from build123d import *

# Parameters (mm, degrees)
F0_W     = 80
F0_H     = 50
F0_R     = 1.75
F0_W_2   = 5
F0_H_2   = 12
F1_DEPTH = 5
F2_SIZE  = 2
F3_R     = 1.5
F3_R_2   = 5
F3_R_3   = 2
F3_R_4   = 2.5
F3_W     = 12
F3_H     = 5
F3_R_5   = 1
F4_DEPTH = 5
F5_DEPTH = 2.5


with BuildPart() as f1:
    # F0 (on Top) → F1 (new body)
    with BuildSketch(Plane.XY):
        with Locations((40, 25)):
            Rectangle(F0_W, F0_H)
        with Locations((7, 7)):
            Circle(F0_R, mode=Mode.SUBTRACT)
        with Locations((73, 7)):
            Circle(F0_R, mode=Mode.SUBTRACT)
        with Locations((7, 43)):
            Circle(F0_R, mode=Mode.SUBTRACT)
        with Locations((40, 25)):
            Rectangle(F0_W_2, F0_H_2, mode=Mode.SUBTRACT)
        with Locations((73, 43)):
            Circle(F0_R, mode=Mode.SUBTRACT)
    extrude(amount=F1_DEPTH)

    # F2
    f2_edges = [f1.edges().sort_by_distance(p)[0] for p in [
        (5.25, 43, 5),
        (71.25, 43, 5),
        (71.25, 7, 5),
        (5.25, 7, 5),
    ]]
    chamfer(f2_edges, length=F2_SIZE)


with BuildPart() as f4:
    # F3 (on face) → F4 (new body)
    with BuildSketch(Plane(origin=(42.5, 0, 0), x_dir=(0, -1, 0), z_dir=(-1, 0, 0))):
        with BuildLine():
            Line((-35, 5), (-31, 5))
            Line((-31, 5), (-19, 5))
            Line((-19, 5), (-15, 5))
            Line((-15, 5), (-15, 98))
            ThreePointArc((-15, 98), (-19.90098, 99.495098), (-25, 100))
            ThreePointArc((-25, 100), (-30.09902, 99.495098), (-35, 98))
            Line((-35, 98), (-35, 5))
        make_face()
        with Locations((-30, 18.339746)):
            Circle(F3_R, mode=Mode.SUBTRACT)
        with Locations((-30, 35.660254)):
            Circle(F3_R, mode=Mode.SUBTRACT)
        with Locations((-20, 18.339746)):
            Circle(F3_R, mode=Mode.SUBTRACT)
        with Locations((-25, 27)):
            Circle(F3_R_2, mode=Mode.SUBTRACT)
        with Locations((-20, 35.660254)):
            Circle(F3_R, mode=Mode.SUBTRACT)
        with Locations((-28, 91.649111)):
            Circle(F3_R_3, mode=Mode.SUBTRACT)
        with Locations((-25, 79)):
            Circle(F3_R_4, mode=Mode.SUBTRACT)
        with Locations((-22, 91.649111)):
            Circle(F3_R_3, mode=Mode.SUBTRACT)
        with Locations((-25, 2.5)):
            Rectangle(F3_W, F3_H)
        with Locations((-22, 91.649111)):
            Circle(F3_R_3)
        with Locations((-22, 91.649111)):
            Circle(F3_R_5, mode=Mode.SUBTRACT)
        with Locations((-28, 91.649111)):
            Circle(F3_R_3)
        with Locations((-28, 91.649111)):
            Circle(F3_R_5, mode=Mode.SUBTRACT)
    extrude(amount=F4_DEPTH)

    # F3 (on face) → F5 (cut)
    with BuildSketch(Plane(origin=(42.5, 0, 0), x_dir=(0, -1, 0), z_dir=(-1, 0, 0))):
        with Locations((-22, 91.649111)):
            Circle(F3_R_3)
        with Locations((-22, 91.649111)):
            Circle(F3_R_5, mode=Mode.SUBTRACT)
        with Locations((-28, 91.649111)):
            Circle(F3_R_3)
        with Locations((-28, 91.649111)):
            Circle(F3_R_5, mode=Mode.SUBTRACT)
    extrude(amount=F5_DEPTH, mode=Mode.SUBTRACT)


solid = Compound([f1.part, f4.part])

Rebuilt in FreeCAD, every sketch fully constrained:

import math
import FreeCAD as App
import Part
import Sketcher

V = App.Vector
Q = App.Units.Quantity


def edges_at(feature, points):
    """Names of the edges that pass closest to the given points."""
    edges = feature.Shape.Edges
    near = lambda p: min(range(len(edges)), key=lambda i: edges[i].distToShape(Part.Vertex(*p))[0])
    return sorted({f"Edge{near(p) + 1}" for p in points})

doc = App.newDocument("Part")
body = doc.addObject("PartDesign::Body", "Body")

# Sketch on XY plane
sketch1 = body.newObject("Sketcher::SketchObject", "Sketch")
sketch1.AttachmentSupport = (doc.getObject("XY_Plane"), [""])
sketch1.MapMode = "FlatFace"
sketch1.addGeometry(Part.LineSegment(V(0, 50, 0), V(0, 0, 0)), False)
sketch1.addGeometry(Part.LineSegment(V(0, 0, 0), V(80, 0, 0)), False)
sketch1.addGeometry(Part.LineSegment(V(80, 0, 0), V(80, 50, 0)), False)
sketch1.addGeometry(Part.LineSegment(V(80, 50, 0), V(0, 50, 0)), False)
sketch1.addGeometry(Part.Circle(V(7, 7, 0), V(0, 0, 1), 1.8), False)
sketch1.addGeometry(Part.Circle(V(73, 7, 0), V(0, 0, 1), 1.8), False)
sketch1.addGeometry(Part.Circle(V(7, 43, 0), V(0, 0, 1), 1.8), False)
sketch1.addGeometry(Part.LineSegment(V(42.5, 19, 0), V(37.5, 19, 0)), False)
sketch1.addGeometry(Part.LineSegment(V(37.5, 19, 0), V(37.5, 31, 0)), False)
sketch1.addGeometry(Part.LineSegment(V(37.5, 31, 0), V(42.5, 31, 0)), False)
sketch1.addGeometry(Part.LineSegment(V(42.5, 31, 0), V(42.5, 19, 0)), False)
sketch1.addGeometry(Part.Circle(V(73, 43, 0), V(0, 0, 1), 1.8), False)
sketch1.addConstraint(Sketcher.Constraint("Coincident", 0, 2, 1, 1))
sketch1.addConstraint(Sketcher.Constraint("Coincident", 1, 2, 2, 1))
sketch1.addConstraint(Sketcher.Constraint("Coincident", 2, 2, 3, 1))
sketch1.addConstraint(Sketcher.Constraint("Coincident", 3, 2, 0, 1))
sketch1.addConstraint(Sketcher.Constraint("Coincident", 7, 2, 8, 1))
sketch1.addConstraint(Sketcher.Constraint("Coincident", 8, 2, 9, 1))
sketch1.addConstraint(Sketcher.Constraint("Coincident", 9, 2, 10, 1))
sketch1.addConstraint(Sketcher.Constraint("Coincident", 10, 2, 7, 1))
sketch1.addConstraint(Sketcher.Constraint("Vertical", 0))
sketch1.addConstraint(Sketcher.Constraint("Horizontal", 1))
sketch1.addConstraint(Sketcher.Constraint("Vertical", 2))
sketch1.addConstraint(Sketcher.Constraint("Horizontal", 3))
sketch1.addConstraint(Sketcher.Constraint("Horizontal", 7))
sketch1.addConstraint(Sketcher.Constraint("Vertical", 8))
sketch1.addConstraint(Sketcher.Constraint("Horizontal", 9))
sketch1.addConstraint(Sketcher.Constraint("Vertical", 10))
sketch1.addConstraint(Sketcher.Constraint("Coincident", 0, 2, -1, 1))
sketch1.addConstraint(Sketcher.Constraint("Equal", 4, 5))
sketch1.addConstraint(Sketcher.Constraint("Equal", 5, 6))
sketch1.addConstraint(Sketcher.Constraint("Equal", 6, 11))
sketch1.addConstraint(Sketcher.Constraint("Horizontal", 4, 3, 5, 3))
sketch1.addConstraint(Sketcher.Constraint("Horizontal", 6, 3, 11, 3))
sketch1.addConstraint(Sketcher.Constraint("Vertical", 4, 3, 6, 3))
sketch1.addConstraint(Sketcher.Constraint("Vertical", 5, 3, 11, 3))
sketch1.addConstraint(Sketcher.Constraint("Diameter", 4, Q("3.5 mm")))
sketch1.addConstraint(Sketcher.Constraint("DistanceX", 1, 1, 1, 2, Q("80 mm")))
sketch1.addConstraint(Sketcher.Constraint("DistanceX", 7, 2, 7, 1, Q("5 mm")))
sketch1.addConstraint(Sketcher.Constraint("DistanceY", 0, 2, 0, 1, Q("50 mm")))
sketch1.addConstraint(Sketcher.Constraint("DistanceY", 8, 1, 8, 2, Q("12 mm")))
sketch1.addConstraint(Sketcher.Constraint("DistanceX", -1, 1, 4, 3, Q("7 mm")))
sketch1.addConstraint(Sketcher.Constraint("DistanceY", -1, 1, 4, 3, Q("7 mm")))
sketch1.addConstraint(Sketcher.Constraint("DistanceX", -1, 1, 5, 3, Q("73 mm")))
sketch1.addConstraint(Sketcher.Constraint("DistanceY", -1, 1, 6, 3, Q("43 mm")))
sketch1.addConstraint(Sketcher.Constraint("DistanceY", -1, 1, 7, 2, Q("19 mm")))
sketch1.addConstraint(Sketcher.Constraint("DistanceX", -1, 1, 7, 2, Q("37.5 mm")))
pad1 = body.newObject("PartDesign::Pad", "Pad")
pad1.Profile = sketch1
pad1.Length = 5
doc.recompute()

chamfer = body.newObject("PartDesign::Chamfer", "Chamfer")
chamfer.Base = (pad1, edges_at(pad1, [
    (5.25, 43, 5),
    (71.25, 43, 5),
    (71.25, 7, 5),
    (5.25, 7, 5),
]))
chamfer.Size = 2
body2 = doc.addObject("PartDesign::Body", "Body001")

# Sketch on YZ plane
sketch2 = body2.newObject("Sketcher::SketchObject", "Sketch001")
sketch2.AttachmentSupport = (doc.getObject("YZ_Plane001"), [""])
sketch2.MapMode = "FlatFace"
sketch2.AttachmentOffset = App.Placement(V(0, 0, 42.5), App.Rotation())
sketch2.addGeometry(Part.LineSegment(V(35, 5, 0), V(31, 5, 0)), False)
sketch2.addGeometry(Part.LineSegment(V(31, 5, 0), V(31, 0, 0)), False)
sketch2.addGeometry(Part.LineSegment(V(31, 0, 0), V(19, 0, 0)), False)
sketch2.addGeometry(Part.LineSegment(V(19, 0, 0), V(19, 5, 0)), False)
sketch2.addGeometry(Part.LineSegment(V(19, 5, 0), V(15, 5, 0)), False)
sketch2.addGeometry(Part.LineSegment(V(15, 5, 0), V(15, 98, 0)), False)
sketch2.addGeometry(Part.ArcOfCircle(Part.Circle(V(24.999995, 74.000026, 0), V(0, 0, 1), 25.999974), math.radians(89.999988), math.radians(112.619876)), False)
sketch2.addGeometry(Part.ArcOfCircle(Part.Circle(V(25.000005, 74.000026, 0), V(0, 0, 1), 25.999974), math.radians(67.380124), math.radians(90.000012)), False)
sketch2.addGeometry(Part.LineSegment(V(35, 98, 0), V(35, 5, 0)), False)
sketch2.addGeometry(Part.Circle(V(30, 18.339746, 0), V(0, 0, 1), 1.5), False)
sketch2.addGeometry(Part.Circle(V(30, 35.660254, 0), V(0, 0, 1), 1.5), False)
sketch2.addGeometry(Part.Circle(V(25, 27, 0), V(0, 0, 1), 5), False)
sketch2.addGeometry(Part.Circle(V(20, 18.339746, 0), V(0, 0, 1), 1.5), False)
sketch2.addGeometry(Part.Circle(V(20, 35.660254, 0), V(0, 0, 1), 1.5), False)
sketch2.addGeometry(Part.Circle(V(28, 91.649111, 0), V(0, 0, 1), 1), False)
sketch2.addGeometry(Part.Circle(V(25, 79, 0), V(0, 0, 1), 2.5), False)
sketch2.addGeometry(Part.Circle(V(22, 91.649111, 0), V(0, 0, 1), 1), False)
sketch2.addConstraint(Sketcher.Constraint("Coincident", 0, 2, 1, 1))
sketch2.addConstraint(Sketcher.Constraint("Coincident", 1, 2, 2, 1))
sketch2.addConstraint(Sketcher.Constraint("Coincident", 2, 2, 3, 1))
sketch2.addConstraint(Sketcher.Constraint("Coincident", 3, 2, 4, 1))
sketch2.addConstraint(Sketcher.Constraint("Coincident", 4, 2, 5, 1))
sketch2.addConstraint(Sketcher.Constraint("Coincident", 5, 2, 6, 2))
sketch2.addConstraint(Sketcher.Constraint("Coincident", 6, 1, 7, 2))
sketch2.addConstraint(Sketcher.Constraint("Coincident", 7, 1, 8, 1))
sketch2.addConstraint(Sketcher.Constraint("Coincident", 8, 2, 0, 1))
sketch2.addConstraint(Sketcher.Constraint("Horizontal", 0))
sketch2.addConstraint(Sketcher.Constraint("Vertical", 1))
sketch2.addConstraint(Sketcher.Constraint("Horizontal", 2))
sketch2.addConstraint(Sketcher.Constraint("Vertical", 3))
sketch2.addConstraint(Sketcher.Constraint("Horizontal", 4))
sketch2.addConstraint(Sketcher.Constraint("Vertical", 5))
sketch2.addConstraint(Sketcher.Constraint("Vertical", 8))
sketch2.addConstraint(Sketcher.Constraint("PointOnObject", 1, 2, -1))
sketch2.addConstraint(Sketcher.Constraint("Diameter", 9, Q("3 mm")))
sketch2.addConstraint(Sketcher.Constraint("Diameter", 10, Q("3 mm")))
sketch2.addConstraint(Sketcher.Constraint("Diameter", 11, Q("10 mm")))
sketch2.addConstraint(Sketcher.Constraint("Diameter", 12, Q("3 mm")))
sketch2.addConstraint(Sketcher.Constraint("Diameter", 13, Q("3 mm")))
sketch2.addConstraint(Sketcher.Constraint("Diameter", 14, Q("2 mm")))
sketch2.addConstraint(Sketcher.Constraint("Diameter", 15, Q("5 mm")))
sketch2.addConstraint(Sketcher.Constraint("Diameter", 16, Q("2 mm")))
sketch2.addConstraint(Sketcher.Constraint("DistanceX", 0, 2, 0, 1, Q("4 mm")))
sketch2.addConstraint(Sketcher.Constraint("DistanceX", 2, 2, 2, 1, Q("12 mm")))
sketch2.addConstraint(Sketcher.Constraint("DistanceX", 4, 2, 4, 1, Q("4 mm")))
sketch2.addConstraint(Sketcher.Constraint("DistanceY", 1, 2, 1, 1, Q("5 mm")))
sketch2.addConstraint(Sketcher.Constraint("DistanceY", 3, 1, 3, 2, Q("5 mm")))
sketch2.addConstraint(Sketcher.Constraint("DistanceY", 5, 1, 5, 2, Q("93 mm")))
sketch2.addConstraint(Sketcher.Constraint("DistanceY", 8, 2, 8, 1, Q("93 mm")))
sketch2.addConstraint(Sketcher.Constraint("DistanceX", -1, 1, 9, 3, Q("30 mm")))
sketch2.addConstraint(Sketcher.Constraint("DistanceX", -1, 1, 10, 3, Q("30 mm")))
sketch2.addConstraint(Sketcher.Constraint("DistanceX", -1, 1, 11, 3, Q("25 mm")))
sketch2.addConstraint(Sketcher.Constraint("DistanceY", -1, 1, 11, 3, Q("27 mm")))
sketch2.addConstraint(Sketcher.Constraint("DistanceX", -1, 1, 12, 3, Q("20 mm")))
sketch2.addConstraint(Sketcher.Constraint("DistanceX", -1, 1, 13, 3, Q("20 mm")))
sketch2.addConstraint(Sketcher.Constraint("DistanceX", -1, 1, 14, 3, Q("28 mm")))
sketch2.addConstraint(Sketcher.Constraint("DistanceX", -1, 1, 15, 3, Q("25 mm")))
sketch2.addConstraint(Sketcher.Constraint("DistanceY", -1, 1, 15, 3, Q("79 mm")))
sketch2.addConstraint(Sketcher.Constraint("DistanceX", -1, 1, 16, 3, Q("22 mm")))
sketch2.addConstraint(Sketcher.Constraint("DistanceX", -1, 1, 0, 2, Q("31 mm")))
sketch2.addConstraint(Sketcher.Constraint("DistanceX", -1, 1, 6, 1, Q("25 mm")))
sketch2.addConstraint(Sketcher.Constraint("DistanceY", -1, 1, 6, 1, Q("100 mm")))
sketch2.addConstraint(Sketcher.Constraint("Radius", 6, Q("25.999974 mm")))
sketch2.addConstraint(Sketcher.Constraint("Radius", 7, Q("25.999974 mm")))
sketch2.addConstraint(Sketcher.Constraint("DistanceY", -1, 1, 14, 3, Q("91.649111 mm")))
sketch2.addConstraint(Sketcher.Constraint("DistanceY", -1, 1, 16, 3, Q("91.649111 mm")))
sketch2.addConstraint(Sketcher.Constraint("DistanceY", 9, 3, 7, 3, Q("55.66028 mm")))
sketch2.addConstraint(Sketcher.Constraint("DistanceY", 9, 3, 10, 3, Q("17.320508 mm")))
sketch2.addConstraint(Sketcher.Constraint("DistanceY", 12, 3, 10, 3, Q("17.320508 mm")))
sketch2.addConstraint(Sketcher.Constraint("DistanceY", 12, 3, 13, 3, Q("17.320508 mm")))
pad2 = body2.newObject("PartDesign::Pad", "Pad001")
pad2.Profile = sketch2
pad2.Length = 5
pad2.Reversed = True

# Sketch on YZ plane
sketch3 = body2.newObject("Sketcher::SketchObject", "Sketch002")
sketch3.AttachmentSupport = (doc.getObject("YZ_Plane001"), [""])
sketch3.MapMode = "FlatFace"
sketch3.AttachmentOffset = App.Placement(V(0, 0, 42.5), App.Rotation())
sketch3.addGeometry(Part.Circle(V(22, 91.6, 0), V(0, 0, 1), 2), False)
sketch3.addGeometry(Part.Circle(V(22, 91.6, 0), V(0, 0, 1), 1), False)
sketch3.addGeometry(Part.Circle(V(28, 91.6, 0), V(0, 0, 1), 2), False)
sketch3.addGeometry(Part.Circle(V(28, 91.6, 0), V(0, 0, 1), 1), False)
sketch3.addConstraint(Sketcher.Constraint("Coincident", 1, 3, 0, 3))
sketch3.addConstraint(Sketcher.Constraint("Coincident", 3, 3, 2, 3))
sketch3.addConstraint(Sketcher.Constraint("Equal", 0, 2))
sketch3.addConstraint(Sketcher.Constraint("Equal", 1, 3))
sketch3.addConstraint(Sketcher.Constraint("Horizontal", 1, 3, 2, 3))
sketch3.addConstraint(Sketcher.Constraint("Diameter", 0, Q("4 mm")))
sketch3.addConstraint(Sketcher.Constraint("Diameter", 1, Q("2 mm")))
sketch3.addConstraint(Sketcher.Constraint("DistanceX", -1, 1, 0, 3, Q("22 mm")))
sketch3.addConstraint(Sketcher.Constraint("DistanceX", -1, 1, 2, 3, Q("28 mm")))
sketch3.addConstraint(Sketcher.Constraint("DistanceY", -1, 1, 0, 3, Q("91.649111 mm")))
pocket1 = body2.newObject("PartDesign::Pocket", "Pocket")
pocket1.Profile = sketch3
pocket1.Length = 2.5

doc.recompute()
